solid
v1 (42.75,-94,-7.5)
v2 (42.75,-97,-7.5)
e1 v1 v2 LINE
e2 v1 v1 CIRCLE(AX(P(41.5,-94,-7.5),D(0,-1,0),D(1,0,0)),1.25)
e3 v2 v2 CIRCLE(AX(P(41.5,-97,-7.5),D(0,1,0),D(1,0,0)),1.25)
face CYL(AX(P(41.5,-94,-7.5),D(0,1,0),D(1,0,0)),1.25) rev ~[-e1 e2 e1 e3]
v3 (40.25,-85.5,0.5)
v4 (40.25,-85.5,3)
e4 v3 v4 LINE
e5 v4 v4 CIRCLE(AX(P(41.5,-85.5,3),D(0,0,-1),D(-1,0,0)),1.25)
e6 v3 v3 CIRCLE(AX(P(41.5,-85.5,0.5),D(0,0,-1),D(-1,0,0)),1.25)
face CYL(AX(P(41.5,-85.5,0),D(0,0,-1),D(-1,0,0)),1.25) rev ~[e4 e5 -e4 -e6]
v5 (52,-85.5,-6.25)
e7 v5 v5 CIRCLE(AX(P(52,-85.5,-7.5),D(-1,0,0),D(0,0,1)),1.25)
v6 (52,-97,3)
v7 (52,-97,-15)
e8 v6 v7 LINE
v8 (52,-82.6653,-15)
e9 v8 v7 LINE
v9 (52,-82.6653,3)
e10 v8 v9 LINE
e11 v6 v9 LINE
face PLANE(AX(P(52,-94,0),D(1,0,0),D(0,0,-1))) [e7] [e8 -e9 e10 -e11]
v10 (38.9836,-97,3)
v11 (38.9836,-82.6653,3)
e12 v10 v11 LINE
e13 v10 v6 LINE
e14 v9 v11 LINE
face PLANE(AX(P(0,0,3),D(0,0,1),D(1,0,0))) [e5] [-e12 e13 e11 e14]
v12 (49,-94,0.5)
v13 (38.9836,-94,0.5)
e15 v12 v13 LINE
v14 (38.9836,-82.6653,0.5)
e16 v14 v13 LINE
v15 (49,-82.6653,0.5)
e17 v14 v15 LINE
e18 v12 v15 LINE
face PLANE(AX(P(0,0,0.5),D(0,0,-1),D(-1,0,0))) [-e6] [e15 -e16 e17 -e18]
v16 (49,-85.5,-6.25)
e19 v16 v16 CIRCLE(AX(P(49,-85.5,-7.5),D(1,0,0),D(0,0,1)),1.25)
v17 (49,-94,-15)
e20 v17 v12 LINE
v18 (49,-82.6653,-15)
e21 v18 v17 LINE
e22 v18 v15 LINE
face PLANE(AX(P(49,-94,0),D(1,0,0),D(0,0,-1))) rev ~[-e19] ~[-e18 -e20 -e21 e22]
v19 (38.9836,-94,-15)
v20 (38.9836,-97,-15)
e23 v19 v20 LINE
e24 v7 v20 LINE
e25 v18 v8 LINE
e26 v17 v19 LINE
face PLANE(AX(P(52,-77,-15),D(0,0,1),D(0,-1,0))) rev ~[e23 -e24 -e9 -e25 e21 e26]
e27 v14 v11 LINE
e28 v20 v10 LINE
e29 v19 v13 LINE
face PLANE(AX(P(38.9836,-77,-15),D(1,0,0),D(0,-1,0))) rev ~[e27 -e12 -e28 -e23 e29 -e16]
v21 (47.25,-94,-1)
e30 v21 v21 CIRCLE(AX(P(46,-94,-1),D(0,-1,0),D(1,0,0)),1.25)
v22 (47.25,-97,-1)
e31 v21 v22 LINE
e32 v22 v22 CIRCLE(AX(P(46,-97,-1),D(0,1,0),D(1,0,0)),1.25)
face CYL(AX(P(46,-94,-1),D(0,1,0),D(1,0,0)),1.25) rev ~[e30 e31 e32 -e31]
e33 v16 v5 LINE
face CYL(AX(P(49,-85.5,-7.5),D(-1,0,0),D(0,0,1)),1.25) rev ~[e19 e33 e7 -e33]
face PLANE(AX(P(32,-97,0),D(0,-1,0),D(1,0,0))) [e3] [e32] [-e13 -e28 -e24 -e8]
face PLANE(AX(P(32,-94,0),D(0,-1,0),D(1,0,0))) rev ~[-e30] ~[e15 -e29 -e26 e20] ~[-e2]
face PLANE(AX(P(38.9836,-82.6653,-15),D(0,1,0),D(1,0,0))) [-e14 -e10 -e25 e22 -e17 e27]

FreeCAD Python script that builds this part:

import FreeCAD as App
import Part
import Sketcher

V = App.Vector
Q = App.Units.Quantity


def add_polygon(sketch, points):
    """Adds a closed chain of lines whose ends are joined by coincident constraints."""
    first, n = sketch.GeometryCount, len(points)
    for a, b in zip(points, points[1:] + points[:1]):
        sketch.addGeometry(Part.LineSegment(App.Vector(*a, 0), App.Vector(*b, 0)), False)
    for i in range(n):
        sketch.addConstraint(Sketcher.Constraint("Coincident", first + i, 2, first + (i + 1) % n, 1))

doc = App.newDocument("Part")
body = doc.addObject("PartDesign::Body", "Body")

sketch1 = doc.addObject("Sketcher::SketchObject", "Sketch")
body.addObject(sketch1)
sketch1.AttachmentSupport = (doc.XY_Plane, [""])
sketch1.MapMode = "FlatFace"
add_polygon(sketch1, [(49, -77), (29, -77), (29, -94), (49, -94)])
sketch1.addConstraint([
    Sketcher.Constraint("Horizontal", 0),
    Sketcher.Constraint("Vertical", 1),
    Sketcher.Constraint("Horizontal", 2),
    Sketcher.Constraint("Vertical", 3),
    Sketcher.Constraint("DistanceX", 0, 2, 0, 1, Q("20 mm")),
    Sketcher.Constraint("DistanceY", 1, 2, 1, 1, Q("17 mm")),
    Sketcher.Constraint("DistanceX", -1, 1, 0, 2, Q("29 mm")),
    Sketcher.Constraint("DistanceY", 0, 2, -1, 1, Q("77 mm")),
])
pad1 = doc.addObject("PartDesign::Pad", "Pad")
body.addObject(pad1)
pad1.Profile = sketch1
pad1.Length = 3

sketch2 = doc.addObject("Sketcher::SketchObject", "Sketch001")
body.addObject(sketch2)
sketch2.AttachmentSupport = (doc.YZ_Plane, [""])
sketch2.MapMode = "FlatFace"
sketch2.AttachmentOffset = App.Placement(V(0, 0, 49), App.Rotation())
add_polygon(sketch2, [(-77, -22), (-77, 3), (-94, 3), (-94, -22)])
sketch2.addConstraint([
    Sketcher.Constraint("Vertical", 0),
    Sketcher.Constraint("Horizontal", 1),
    Sketcher.Constraint("Vertical", 2),
    Sketcher.Constraint("Horizontal", 3),
    Sketcher.Constraint("DistanceY", 0, 1, 0, 2, Q("25 mm")),
    Sketcher.Constraint("DistanceX", 1, 2, 1, 1, Q("17 mm")),
    Sketcher.Constraint("DistanceX", 0, 2, -1, 1, Q("77 mm")),
    Sketcher.Constraint("DistanceY", -1, 1, 0, 2, Q("3 mm")),
])
pad2 = doc.addObject("PartDesign::Pad", "Pad001")
body.addObject(pad2)
pad2.Profile = sketch2
pad2.Length = 3

sketch3 = doc.addObject("Sketcher::SketchObject", "Sketch002")
body.addObject(sketch3)
sketch3.AttachmentSupport = (doc.XZ_Plane, [""])
sketch3.MapMode = "FlatFace"
sketch3.AttachmentOffset = App.Placement(V(0, 0, 94), App.Rotation())
add_polygon(sketch3, [(52, -22), (52, 3), (29, 3), (29, -22)])
sketch3.addConstraint([
    Sketcher.Constraint("Vertical", 0),
    Sketcher.Constraint("Horizontal", 1),
    Sketcher.Constraint("Vertical", 2),
    Sketcher.Constraint("Horizontal", 3),
    Sketcher.Constraint("DistanceX", 1, 2, 1, 1, Q("23 mm")),
    Sketcher.Constraint("DistanceY", 0, 1, 0, 2, Q("25 mm")),
    Sketcher.Constraint("DistanceX", -1, 1, 0, 2, Q("52 mm")),
    Sketcher.Constraint("DistanceY", -1, 1, 0, 2, Q("3 mm")),
])
pad3 = doc.addObject("PartDesign::Pad", "Pad002")
body.addObject(pad3)
pad3.Profile = sketch3
pad3.Length = 3

sketch4 = doc.addObject("Sketcher::SketchObject", "Sketch003")
body.addObject(sketch4)
sketch4.AttachmentSupport = (doc.XY_Plane, [""])
sketch4.MapMode = "FlatFace"
sketch4.AttachmentOffset = App.Placement(V(0, 0, 3), App.Rotation())
add_polygon(sketch4, [(29, -77), (29, -97), (34, -97), (34, -77)])
sketch4.addConstraint([
    Sketcher.Constraint("Vertical", 0),
    Sketcher.Constraint("Horizontal", 1),
    Sketcher.Constraint("Vertical", 2),
    Sketcher.Constraint("Horizontal", 3),
    Sketcher.Constraint("DistanceX", 1, 1, 1, 2, Q("5 mm")),
    Sketcher.Constraint("DistanceY", 0, 2, 0, 1, Q("20 mm")),
    Sketcher.Constraint("DistanceX", -1, 1, 0, 2, Q("29 mm")),
    Sketcher.Constraint("DistanceY", 0, 2, -1, 1, Q("97 mm")),
])
pocket1 = doc.addObject("PartDesign::Pocket", "Pocket")
body.addObject(pocket1)
pocket1.Profile = sketch4
pocket1.Length = 50

sketch5 = doc.addObject("Sketcher::SketchObject", "Sketch004")
body.addObject(sketch5)
sketch5.AttachmentSupport = (doc.YZ_Plane, [""])
sketch5.MapMode = "FlatFace"
sketch5.AttachmentOffset = App.Placement(V(0, 0, 52), App.Rotation())
add_polygon(sketch5, [(-77, -15), (-97, -15), (-97, -22), (-77, -22)])
sketch5.addConstraint([
    Sketcher.Constraint("Horizontal", 0),
    Sketcher.Constraint("Vertical", 1),
    Sketcher.Constraint("Horizontal", 2),
    Sketcher.Constraint("Vertical", 3),
    Sketcher.Constraint("DistanceX", 0, 2, 0, 1, Q("20 mm")),
    Sketcher.Constraint("DistanceY", 1, 2, 1, 1, Q("7 mm")),
    Sketcher.Constraint("DistanceX", 0, 2, -1, 1, Q("97 mm")),
    Sketcher.Constraint("DistanceY", 0, 2, -1, 1, Q("15 mm")),
])
pocket2 = doc.addObject("PartDesign::Pocket", "Pocket001")
body.addObject(pocket2)
pocket2.Profile = sketch5
pocket2.Length = 50

sketch6 = doc.addObject("Sketcher::SketchObject", "Sketch005")
body.addObject(sketch6)
sketch6.AttachmentSupport = (doc.XZ_Plane, [""])
sketch6.MapMode = "FlatFace"
sketch6.AttachmentOffset = App.Placement(V(0, 0, 94), App.Rotation())
sketch6.addGeometry(Part.Circle(V(46, -1, 0), V(0, 0, 1), 1.25), False)
sketch6.addConstraint([
    Sketcher.Constraint("Diameter", 0, Q("2.5 mm")),
    Sketcher.Constraint("DistanceX", -1, 1, 0, 3, Q("46 mm")),
    Sketcher.Constraint("DistanceY", 0, 3, -1, 1, Q("1 mm")),
])
pocket3 = doc.addObject("PartDesign::Pocket", "Pocket002")
body.addObject(pocket3)
pocket3.Profile = sketch6
pocket3.Length = 50
pocket3.Reversed = True

sketch7 = doc.addObject("Sketcher::SketchObject", "Sketch006")
body.addObject(sketch7)
sketch7.AttachmentSupport = (doc.XY_Plane, [""])
sketch7.MapMode = "FlatFace"
sketch7.addGeometry(Part.Circle(V(41.5, -85.5, 0), V(0, 0, 1), 1.25), False)
sketch7.addConstraint([
    Sketcher.Constraint("Diameter", 0, Q("2.5 mm")),
    Sketcher.Constraint("DistanceX", -1, 1, 0, 3, Q("41.5 mm")),
    Sketcher.Constraint("DistanceY", 0, 3, -1, 1, Q("85.5 mm")),
])
pocket4 = doc.addObject("PartDesign::Pocket", "Pocket003")
body.addObject(pocket4)
pocket4.Profile = sketch7
pocket4.Length = 50
pocket4.Reversed = True

sketch8 = doc.addObject("Sketcher::SketchObject", "Sketch007")
body.addObject(sketch8)
sketch8.AttachmentSupport = (doc.YZ_Plane, [""])
sketch8.MapMode = "FlatFace"
sketch8.AttachmentOffset = App.Placement(V(0, 0, 49), App.Rotation())
sketch8.addGeometry(Part.Circle(V(-85.5, -7.5, 0), V(0, 0, 1), 1.25), False)
sketch8.addConstraint([
    Sketcher.Constraint("Diameter", 0, Q("2.5 mm")),
    Sketcher.Constraint("DistanceX", 0, 3, -1, 1, Q("85.5 mm")),
    Sketcher.Constraint("DistanceY", 0, 3, -1, 1, Q("7.5 mm")),
])
pocket5 = doc.addObject("PartDesign::Pocket", "Pocket004")
body.addObject(pocket5)
pocket5.Profile = sketch8
pocket5.Length = 50
pocket5.Reversed = True

sketch9 = doc.addObject("Sketcher::SketchObject", "Sketch008")
body.addObject(sketch9)
sketch9.AttachmentSupport = (doc.XZ_Plane, [""])
sketch9.MapMode = "FlatFace"
sketch9.AttachmentOffset = App.Placement(V(0, 0, 94), App.Rotation())
sketch9.addGeometry(Part.Circle(V(41.5, -7.5, 0), V(0, 0, 1), 1.25), False)
sketch9.addConstraint([
    Sketcher.Constraint("Diameter", 0, Q("2.5 mm")),
    Sketcher.Constraint("DistanceX", -1, 1, 0, 3, Q("41.5 mm")),
    Sketcher.Constraint("DistanceY", 0, 3, -1, 1, Q("7.5 mm")),
])
pocket6 = doc.addObject("PartDesign::Pocket", "Pocket005")
body.addObject(pocket6)
pocket6.Profile = sketch9
pocket6.Length = 50
pocket6.Reversed = True

sketch10 = doc.addObject("Sketcher::SketchObject", "Sketch009")
body.addObject(sketch10)
sketch10.AttachmentSupport = (doc.XY_Plane, [""])
sketch10.MapMode = "FlatFace"
add_polygon(sketch10, [(49, -94), (34, -94), (34, -77), (49, -77)])
sketch10.addGeometry(Part.Circle(V(41.5, -85.5, 0), V(0, 0, 1), 1.25), False)
sketch10.addConstraint([
    Sketcher.Constraint("Horizontal", 0),
    Sketcher.Constraint("Vertical", 1),
    Sketcher.Constraint("Horizontal", 2),
    Sketcher.Constraint("Vertical", 3),
    Sketcher.Constraint("Diameter", 4, Q("2.5 mm")),
    Sketcher.Constraint("DistanceX", 0, 2, 0, 1, Q("15 mm")),
    Sketcher.Constraint("DistanceY", 1, 1, 1, 2, Q("17 mm")),
    Sketcher.Constraint("DistanceX", -1, 1, 0, 2, Q("34 mm")),
    Sketcher.Constraint("DistanceY", 0, 2, -1, 1, Q("94 mm")),
    Sketcher.Constraint("DistanceX", -1, 1, 4, 3, Q("41.5 mm")),
    Sketcher.Constraint("DistanceY", 4, 3, -1, 1, Q("85.5 mm")),
])
pocket7 = doc.addObject("PartDesign::Pocket", "Pocket006")
body.addObject(pocket7)
pocket7.Profile = sketch10
pocket7.Length = 0.5
pocket7.Reversed = True

sketch11 = doc.addObject("Sketcher::SketchObject", "Sketch010")
body.addObject(sketch11)
sketch11.AttachmentSupport = (doc.XY_Plane, [""])
sketch11.MapMode = "FlatFace"
sketch11.AttachmentOffset = App.Placement(V(0, 0, -15), App.Rotation())
add_polygon(sketch11, [(34, -97), (34, -77), (38.9836, -77), (38.9836, -97)])
sketch11.addConstraint([
    Sketcher.Constraint("Vertical", 0),
    Sketcher.Constraint("Horizontal", 1),
    Sketcher.Constraint("Vertical", 2),
    Sketcher.Constraint("Horizontal", 3),
    Sketcher.Constraint("DistanceY", 0, 1, 0, 2, Q("20 mm")),
    Sketcher.Constraint("DistanceX", -1, 1, 0, 2, Q("34 mm")),
    Sketcher.Constraint("DistanceY", 0, 2, -1, 1, Q("77 mm")),
    Sketcher.Constraint("DistanceX", 1, 1, 1, 2, Q("4.9836 mm")),
])
pocket8 = doc.addObject("PartDesign::Pocket", "Pocket007")
body.addObject(pocket8)
pocket8.Profile = sketch11
pocket8.Length = 50
pocket8.Reversed = True

sketch12 = doc.addObject("Sketcher::SketchObject", "Sketch011")
body.addObject(sketch12)
sketch12.AttachmentSupport = (doc.XY_Plane, [""])
sketch12.MapMode = "FlatFace"
sketch12.AttachmentOffset = App.Placement(V(0, 0, -15), App.Rotation())
add_polygon(sketch12, [(38.9836, -77), (52, -77), (52, -82.6653), (38.9836, -82.6653)])
sketch12.addConstraint([
    Sketcher.Constraint("Horizontal", 0),
    Sketcher.Constraint("Vertical", 1),
    Sketcher.Constraint("Horizontal", 2),
    Sketcher.Constraint("Vertical", 3),
    Sketcher.Constraint("DistanceX", -1, 1, 0, 2, Q("52 mm")),
    Sketcher.Constraint("DistanceY", 0, 2, -1, 1, Q("77 mm")),
    Sketcher.Constraint("DistanceX", 0, 1, 0, 2, Q("13.0164 mm")),
    Sketcher.Constraint("DistanceY", 1, 2, 1, 1, Q("5.6653 mm")),
])
pocket9 = doc.addObject("PartDesign::Pocket", "Pocket008")
body.addObject(pocket9)
pocket9.Profile = sketch12
pocket9.Length = 50
pocket9.Reversed = True

doc.recompute()
